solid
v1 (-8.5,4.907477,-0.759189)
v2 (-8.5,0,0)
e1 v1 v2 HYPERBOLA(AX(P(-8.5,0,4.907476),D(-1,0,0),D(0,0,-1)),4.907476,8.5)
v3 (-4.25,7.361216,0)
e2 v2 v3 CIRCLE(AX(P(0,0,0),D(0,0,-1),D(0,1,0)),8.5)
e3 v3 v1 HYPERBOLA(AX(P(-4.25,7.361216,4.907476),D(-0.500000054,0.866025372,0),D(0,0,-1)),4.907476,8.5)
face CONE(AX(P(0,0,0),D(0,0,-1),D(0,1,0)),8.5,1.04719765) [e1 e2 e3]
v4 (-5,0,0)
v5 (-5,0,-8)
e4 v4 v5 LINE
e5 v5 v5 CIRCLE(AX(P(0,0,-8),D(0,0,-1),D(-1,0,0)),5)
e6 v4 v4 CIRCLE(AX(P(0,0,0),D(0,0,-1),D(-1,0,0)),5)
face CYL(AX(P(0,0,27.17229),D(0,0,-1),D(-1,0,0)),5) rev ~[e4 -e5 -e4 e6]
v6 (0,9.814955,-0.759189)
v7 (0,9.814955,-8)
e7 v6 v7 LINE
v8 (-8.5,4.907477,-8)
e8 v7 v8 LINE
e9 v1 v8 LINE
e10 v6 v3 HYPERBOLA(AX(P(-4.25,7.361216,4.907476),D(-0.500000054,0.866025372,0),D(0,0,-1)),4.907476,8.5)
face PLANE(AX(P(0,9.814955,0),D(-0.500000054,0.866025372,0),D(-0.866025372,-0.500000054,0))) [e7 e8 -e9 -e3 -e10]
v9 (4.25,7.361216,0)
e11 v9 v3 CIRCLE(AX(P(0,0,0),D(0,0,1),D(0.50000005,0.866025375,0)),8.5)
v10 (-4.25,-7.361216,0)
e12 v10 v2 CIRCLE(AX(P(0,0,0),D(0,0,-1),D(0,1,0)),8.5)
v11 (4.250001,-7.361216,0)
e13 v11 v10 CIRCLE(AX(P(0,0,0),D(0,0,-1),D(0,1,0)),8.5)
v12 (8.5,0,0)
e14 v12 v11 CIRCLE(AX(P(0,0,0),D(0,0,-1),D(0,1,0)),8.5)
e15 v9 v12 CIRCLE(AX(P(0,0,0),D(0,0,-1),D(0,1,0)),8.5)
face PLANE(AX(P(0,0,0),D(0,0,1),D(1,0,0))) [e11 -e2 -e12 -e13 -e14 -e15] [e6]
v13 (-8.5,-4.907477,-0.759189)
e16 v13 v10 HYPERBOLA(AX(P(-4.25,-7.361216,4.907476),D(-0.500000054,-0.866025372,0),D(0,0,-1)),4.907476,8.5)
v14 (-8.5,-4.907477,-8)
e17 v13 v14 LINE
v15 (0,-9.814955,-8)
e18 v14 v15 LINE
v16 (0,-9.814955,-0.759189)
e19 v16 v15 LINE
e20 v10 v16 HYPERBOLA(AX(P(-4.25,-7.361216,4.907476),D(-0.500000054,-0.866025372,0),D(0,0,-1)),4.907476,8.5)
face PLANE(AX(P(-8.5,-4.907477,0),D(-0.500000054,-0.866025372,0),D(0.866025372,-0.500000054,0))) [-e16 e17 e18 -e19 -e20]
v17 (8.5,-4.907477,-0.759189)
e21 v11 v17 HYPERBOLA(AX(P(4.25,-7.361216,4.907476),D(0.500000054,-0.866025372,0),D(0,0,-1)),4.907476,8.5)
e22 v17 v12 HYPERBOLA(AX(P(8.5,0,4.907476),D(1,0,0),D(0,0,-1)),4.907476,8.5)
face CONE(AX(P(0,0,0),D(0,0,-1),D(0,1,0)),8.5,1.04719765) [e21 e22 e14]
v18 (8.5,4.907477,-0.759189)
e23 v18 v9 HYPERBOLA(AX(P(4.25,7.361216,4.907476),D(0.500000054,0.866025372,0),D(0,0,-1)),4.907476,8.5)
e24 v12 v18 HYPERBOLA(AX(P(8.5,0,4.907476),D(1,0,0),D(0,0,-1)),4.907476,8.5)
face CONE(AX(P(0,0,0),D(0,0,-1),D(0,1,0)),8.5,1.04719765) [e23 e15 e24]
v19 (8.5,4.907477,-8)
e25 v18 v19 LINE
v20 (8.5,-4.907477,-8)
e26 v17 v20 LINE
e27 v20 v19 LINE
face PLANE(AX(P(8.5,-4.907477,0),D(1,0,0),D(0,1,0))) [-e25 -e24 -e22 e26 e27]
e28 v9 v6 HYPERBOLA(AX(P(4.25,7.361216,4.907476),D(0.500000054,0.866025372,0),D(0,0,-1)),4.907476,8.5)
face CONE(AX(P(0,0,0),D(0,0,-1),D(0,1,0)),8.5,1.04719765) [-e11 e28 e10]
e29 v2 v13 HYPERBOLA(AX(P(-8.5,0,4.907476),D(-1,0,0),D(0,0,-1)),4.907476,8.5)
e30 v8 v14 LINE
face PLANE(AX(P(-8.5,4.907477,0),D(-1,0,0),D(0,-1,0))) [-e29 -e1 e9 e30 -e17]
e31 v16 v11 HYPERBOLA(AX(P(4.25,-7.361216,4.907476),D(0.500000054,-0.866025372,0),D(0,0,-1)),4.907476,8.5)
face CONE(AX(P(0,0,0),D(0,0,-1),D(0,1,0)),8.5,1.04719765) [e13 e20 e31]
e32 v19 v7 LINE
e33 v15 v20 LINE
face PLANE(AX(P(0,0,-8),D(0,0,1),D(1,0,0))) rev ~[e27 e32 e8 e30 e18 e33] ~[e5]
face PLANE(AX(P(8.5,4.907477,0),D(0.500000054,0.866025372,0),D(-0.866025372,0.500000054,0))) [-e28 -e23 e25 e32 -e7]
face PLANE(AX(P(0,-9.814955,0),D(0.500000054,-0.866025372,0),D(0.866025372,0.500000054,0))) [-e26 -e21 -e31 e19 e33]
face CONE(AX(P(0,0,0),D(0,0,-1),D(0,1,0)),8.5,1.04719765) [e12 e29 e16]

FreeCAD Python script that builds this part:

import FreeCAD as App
import Part
import Sketcher
from FreeCAD import Vector
Q = App.Units.Quantity


def add_polygon(sketch, points):
    """Adds a closed chain of lines whose ends are joined by coincident constraints."""
    first, n = sketch.GeometryCount, len(points)
    for a, b in zip(points, points[1:] + points[:1]):
        sketch.addGeometry(Part.LineSegment(App.Vector(*a, 0), App.Vector(*b, 0)), False)
    for i in range(n):
        sketch.addConstraint(Sketcher.Constraint("Coincident", first + i, 2, first + (i + 1) % n, 1))

doc = App.newDocument("Part")
body = doc.addObject("PartDesign::Body", "Body")

sketch1 = body.newObject("Sketcher::SketchObject", "Sketch")
sketch1.AttachmentSupport = (doc.getObject("XY_Plane"), [""])
sketch1.MapMode = "FlatFace"
add_polygon(sketch1, [(8.5, -4.907477), (8.5, 4.907477), (0, 9.814955), (-8.5, 4.907477), (-8.5, -4.907477), (0, -9.814955)])
sketch1.addConstraint(Sketcher.Constraint("Vertical", 0))
sketch1.addConstraint(Sketcher.Constraint("Vertical", 3))
sketch1.addConstraint(Sketcher.Constraint("Symmetric", 0, 2, 3, 2, -1, 1))
sketch1.addConstraint(Sketcher.Constraint("Symmetric", 1, 2, 4, 2, -1, 1))
sketch1.addConstraint(Sketcher.Constraint("PointOnObject", 1, 2, -2))
sketch1.addConstraint(Sketcher.Constraint("Parallel", 2, 5))
sketch1.addConstraint(Sketcher.Constraint("Horizontal", 0, 2, 2, 2))
sketch1.addConstraint(Sketcher.Constraint("Angle", 1, Q("149.999996 deg")))
sketch1.addConstraint(Sketcher.Constraint("DistanceX", 2, 2, 0, 2, 17.0))
sketch1.addConstraint(Sketcher.Constraint("DistanceY", 0, 1, 0, 2, 9.814954))
pad1 = body.newObject("PartDesign::Pad", "Pad")
pad1.Profile = sketch1
pad1.Length = 8
pad1.Reversed = True

sketch2 = body.newObject("Sketcher::SketchObject", "Sketch001")
sketch2.AttachmentSupport = (doc.getObject("YZ_Plane"), [""])
sketch2.MapMode = "FlatFace"
add_polygon(sketch2, [(13.814955, 0), (8.5, 0), (13.814955, -3.06859)])
sketch2.addConstraint(Sketcher.Constraint("Horizontal", 0))
sketch2.addConstraint(Sketcher.Constraint("Vertical", 2))
sketch2.addConstraint(Sketcher.Constraint("PointOnObject", 0, 2, -1))
sketch2.addConstraint(Sketcher.Constraint("Angle", 1, Q("-29.999994 deg")))
sketch2.addConstraint(Sketcher.Constraint("DistanceX", -1, 1, 0, 2, 8.5))
sketch2.addConstraint(Sketcher.Constraint("DistanceY", 2, 1, 2, 2, 3.06859))
groove = body.newObject("PartDesign::Groove", "Groove")
groove.Profile = sketch2
groove.ReferenceAxis = (sketch2, ["V_Axis"])
groove.Angle = 360

sketch3 = body.newObject("Sketcher::SketchObject", "Sketch002")
sketch3.AttachmentSupport = (doc.getObject("XY_Plane"), [""])
sketch3.MapMode = "FlatFace"
sketch3.addGeometry(Part.Circle(Vector(0, 0, 0), Vector(0, 0, 1), 5), False)
sketch3.addConstraint(Sketcher.Constraint("Coincident", 0, 3, -1, 1))
sketch3.addConstraint(Sketcher.Constraint("Diameter", 0, 10.0))
doc.recompute()
hole = body.newObject("PartDesign::Hole", "Hole")
hole.Profile = sketch3
hole.ThreadType = "None"
hole.Diameter = 10
hole.DepthType = "ThroughAll"

doc.recompute()
